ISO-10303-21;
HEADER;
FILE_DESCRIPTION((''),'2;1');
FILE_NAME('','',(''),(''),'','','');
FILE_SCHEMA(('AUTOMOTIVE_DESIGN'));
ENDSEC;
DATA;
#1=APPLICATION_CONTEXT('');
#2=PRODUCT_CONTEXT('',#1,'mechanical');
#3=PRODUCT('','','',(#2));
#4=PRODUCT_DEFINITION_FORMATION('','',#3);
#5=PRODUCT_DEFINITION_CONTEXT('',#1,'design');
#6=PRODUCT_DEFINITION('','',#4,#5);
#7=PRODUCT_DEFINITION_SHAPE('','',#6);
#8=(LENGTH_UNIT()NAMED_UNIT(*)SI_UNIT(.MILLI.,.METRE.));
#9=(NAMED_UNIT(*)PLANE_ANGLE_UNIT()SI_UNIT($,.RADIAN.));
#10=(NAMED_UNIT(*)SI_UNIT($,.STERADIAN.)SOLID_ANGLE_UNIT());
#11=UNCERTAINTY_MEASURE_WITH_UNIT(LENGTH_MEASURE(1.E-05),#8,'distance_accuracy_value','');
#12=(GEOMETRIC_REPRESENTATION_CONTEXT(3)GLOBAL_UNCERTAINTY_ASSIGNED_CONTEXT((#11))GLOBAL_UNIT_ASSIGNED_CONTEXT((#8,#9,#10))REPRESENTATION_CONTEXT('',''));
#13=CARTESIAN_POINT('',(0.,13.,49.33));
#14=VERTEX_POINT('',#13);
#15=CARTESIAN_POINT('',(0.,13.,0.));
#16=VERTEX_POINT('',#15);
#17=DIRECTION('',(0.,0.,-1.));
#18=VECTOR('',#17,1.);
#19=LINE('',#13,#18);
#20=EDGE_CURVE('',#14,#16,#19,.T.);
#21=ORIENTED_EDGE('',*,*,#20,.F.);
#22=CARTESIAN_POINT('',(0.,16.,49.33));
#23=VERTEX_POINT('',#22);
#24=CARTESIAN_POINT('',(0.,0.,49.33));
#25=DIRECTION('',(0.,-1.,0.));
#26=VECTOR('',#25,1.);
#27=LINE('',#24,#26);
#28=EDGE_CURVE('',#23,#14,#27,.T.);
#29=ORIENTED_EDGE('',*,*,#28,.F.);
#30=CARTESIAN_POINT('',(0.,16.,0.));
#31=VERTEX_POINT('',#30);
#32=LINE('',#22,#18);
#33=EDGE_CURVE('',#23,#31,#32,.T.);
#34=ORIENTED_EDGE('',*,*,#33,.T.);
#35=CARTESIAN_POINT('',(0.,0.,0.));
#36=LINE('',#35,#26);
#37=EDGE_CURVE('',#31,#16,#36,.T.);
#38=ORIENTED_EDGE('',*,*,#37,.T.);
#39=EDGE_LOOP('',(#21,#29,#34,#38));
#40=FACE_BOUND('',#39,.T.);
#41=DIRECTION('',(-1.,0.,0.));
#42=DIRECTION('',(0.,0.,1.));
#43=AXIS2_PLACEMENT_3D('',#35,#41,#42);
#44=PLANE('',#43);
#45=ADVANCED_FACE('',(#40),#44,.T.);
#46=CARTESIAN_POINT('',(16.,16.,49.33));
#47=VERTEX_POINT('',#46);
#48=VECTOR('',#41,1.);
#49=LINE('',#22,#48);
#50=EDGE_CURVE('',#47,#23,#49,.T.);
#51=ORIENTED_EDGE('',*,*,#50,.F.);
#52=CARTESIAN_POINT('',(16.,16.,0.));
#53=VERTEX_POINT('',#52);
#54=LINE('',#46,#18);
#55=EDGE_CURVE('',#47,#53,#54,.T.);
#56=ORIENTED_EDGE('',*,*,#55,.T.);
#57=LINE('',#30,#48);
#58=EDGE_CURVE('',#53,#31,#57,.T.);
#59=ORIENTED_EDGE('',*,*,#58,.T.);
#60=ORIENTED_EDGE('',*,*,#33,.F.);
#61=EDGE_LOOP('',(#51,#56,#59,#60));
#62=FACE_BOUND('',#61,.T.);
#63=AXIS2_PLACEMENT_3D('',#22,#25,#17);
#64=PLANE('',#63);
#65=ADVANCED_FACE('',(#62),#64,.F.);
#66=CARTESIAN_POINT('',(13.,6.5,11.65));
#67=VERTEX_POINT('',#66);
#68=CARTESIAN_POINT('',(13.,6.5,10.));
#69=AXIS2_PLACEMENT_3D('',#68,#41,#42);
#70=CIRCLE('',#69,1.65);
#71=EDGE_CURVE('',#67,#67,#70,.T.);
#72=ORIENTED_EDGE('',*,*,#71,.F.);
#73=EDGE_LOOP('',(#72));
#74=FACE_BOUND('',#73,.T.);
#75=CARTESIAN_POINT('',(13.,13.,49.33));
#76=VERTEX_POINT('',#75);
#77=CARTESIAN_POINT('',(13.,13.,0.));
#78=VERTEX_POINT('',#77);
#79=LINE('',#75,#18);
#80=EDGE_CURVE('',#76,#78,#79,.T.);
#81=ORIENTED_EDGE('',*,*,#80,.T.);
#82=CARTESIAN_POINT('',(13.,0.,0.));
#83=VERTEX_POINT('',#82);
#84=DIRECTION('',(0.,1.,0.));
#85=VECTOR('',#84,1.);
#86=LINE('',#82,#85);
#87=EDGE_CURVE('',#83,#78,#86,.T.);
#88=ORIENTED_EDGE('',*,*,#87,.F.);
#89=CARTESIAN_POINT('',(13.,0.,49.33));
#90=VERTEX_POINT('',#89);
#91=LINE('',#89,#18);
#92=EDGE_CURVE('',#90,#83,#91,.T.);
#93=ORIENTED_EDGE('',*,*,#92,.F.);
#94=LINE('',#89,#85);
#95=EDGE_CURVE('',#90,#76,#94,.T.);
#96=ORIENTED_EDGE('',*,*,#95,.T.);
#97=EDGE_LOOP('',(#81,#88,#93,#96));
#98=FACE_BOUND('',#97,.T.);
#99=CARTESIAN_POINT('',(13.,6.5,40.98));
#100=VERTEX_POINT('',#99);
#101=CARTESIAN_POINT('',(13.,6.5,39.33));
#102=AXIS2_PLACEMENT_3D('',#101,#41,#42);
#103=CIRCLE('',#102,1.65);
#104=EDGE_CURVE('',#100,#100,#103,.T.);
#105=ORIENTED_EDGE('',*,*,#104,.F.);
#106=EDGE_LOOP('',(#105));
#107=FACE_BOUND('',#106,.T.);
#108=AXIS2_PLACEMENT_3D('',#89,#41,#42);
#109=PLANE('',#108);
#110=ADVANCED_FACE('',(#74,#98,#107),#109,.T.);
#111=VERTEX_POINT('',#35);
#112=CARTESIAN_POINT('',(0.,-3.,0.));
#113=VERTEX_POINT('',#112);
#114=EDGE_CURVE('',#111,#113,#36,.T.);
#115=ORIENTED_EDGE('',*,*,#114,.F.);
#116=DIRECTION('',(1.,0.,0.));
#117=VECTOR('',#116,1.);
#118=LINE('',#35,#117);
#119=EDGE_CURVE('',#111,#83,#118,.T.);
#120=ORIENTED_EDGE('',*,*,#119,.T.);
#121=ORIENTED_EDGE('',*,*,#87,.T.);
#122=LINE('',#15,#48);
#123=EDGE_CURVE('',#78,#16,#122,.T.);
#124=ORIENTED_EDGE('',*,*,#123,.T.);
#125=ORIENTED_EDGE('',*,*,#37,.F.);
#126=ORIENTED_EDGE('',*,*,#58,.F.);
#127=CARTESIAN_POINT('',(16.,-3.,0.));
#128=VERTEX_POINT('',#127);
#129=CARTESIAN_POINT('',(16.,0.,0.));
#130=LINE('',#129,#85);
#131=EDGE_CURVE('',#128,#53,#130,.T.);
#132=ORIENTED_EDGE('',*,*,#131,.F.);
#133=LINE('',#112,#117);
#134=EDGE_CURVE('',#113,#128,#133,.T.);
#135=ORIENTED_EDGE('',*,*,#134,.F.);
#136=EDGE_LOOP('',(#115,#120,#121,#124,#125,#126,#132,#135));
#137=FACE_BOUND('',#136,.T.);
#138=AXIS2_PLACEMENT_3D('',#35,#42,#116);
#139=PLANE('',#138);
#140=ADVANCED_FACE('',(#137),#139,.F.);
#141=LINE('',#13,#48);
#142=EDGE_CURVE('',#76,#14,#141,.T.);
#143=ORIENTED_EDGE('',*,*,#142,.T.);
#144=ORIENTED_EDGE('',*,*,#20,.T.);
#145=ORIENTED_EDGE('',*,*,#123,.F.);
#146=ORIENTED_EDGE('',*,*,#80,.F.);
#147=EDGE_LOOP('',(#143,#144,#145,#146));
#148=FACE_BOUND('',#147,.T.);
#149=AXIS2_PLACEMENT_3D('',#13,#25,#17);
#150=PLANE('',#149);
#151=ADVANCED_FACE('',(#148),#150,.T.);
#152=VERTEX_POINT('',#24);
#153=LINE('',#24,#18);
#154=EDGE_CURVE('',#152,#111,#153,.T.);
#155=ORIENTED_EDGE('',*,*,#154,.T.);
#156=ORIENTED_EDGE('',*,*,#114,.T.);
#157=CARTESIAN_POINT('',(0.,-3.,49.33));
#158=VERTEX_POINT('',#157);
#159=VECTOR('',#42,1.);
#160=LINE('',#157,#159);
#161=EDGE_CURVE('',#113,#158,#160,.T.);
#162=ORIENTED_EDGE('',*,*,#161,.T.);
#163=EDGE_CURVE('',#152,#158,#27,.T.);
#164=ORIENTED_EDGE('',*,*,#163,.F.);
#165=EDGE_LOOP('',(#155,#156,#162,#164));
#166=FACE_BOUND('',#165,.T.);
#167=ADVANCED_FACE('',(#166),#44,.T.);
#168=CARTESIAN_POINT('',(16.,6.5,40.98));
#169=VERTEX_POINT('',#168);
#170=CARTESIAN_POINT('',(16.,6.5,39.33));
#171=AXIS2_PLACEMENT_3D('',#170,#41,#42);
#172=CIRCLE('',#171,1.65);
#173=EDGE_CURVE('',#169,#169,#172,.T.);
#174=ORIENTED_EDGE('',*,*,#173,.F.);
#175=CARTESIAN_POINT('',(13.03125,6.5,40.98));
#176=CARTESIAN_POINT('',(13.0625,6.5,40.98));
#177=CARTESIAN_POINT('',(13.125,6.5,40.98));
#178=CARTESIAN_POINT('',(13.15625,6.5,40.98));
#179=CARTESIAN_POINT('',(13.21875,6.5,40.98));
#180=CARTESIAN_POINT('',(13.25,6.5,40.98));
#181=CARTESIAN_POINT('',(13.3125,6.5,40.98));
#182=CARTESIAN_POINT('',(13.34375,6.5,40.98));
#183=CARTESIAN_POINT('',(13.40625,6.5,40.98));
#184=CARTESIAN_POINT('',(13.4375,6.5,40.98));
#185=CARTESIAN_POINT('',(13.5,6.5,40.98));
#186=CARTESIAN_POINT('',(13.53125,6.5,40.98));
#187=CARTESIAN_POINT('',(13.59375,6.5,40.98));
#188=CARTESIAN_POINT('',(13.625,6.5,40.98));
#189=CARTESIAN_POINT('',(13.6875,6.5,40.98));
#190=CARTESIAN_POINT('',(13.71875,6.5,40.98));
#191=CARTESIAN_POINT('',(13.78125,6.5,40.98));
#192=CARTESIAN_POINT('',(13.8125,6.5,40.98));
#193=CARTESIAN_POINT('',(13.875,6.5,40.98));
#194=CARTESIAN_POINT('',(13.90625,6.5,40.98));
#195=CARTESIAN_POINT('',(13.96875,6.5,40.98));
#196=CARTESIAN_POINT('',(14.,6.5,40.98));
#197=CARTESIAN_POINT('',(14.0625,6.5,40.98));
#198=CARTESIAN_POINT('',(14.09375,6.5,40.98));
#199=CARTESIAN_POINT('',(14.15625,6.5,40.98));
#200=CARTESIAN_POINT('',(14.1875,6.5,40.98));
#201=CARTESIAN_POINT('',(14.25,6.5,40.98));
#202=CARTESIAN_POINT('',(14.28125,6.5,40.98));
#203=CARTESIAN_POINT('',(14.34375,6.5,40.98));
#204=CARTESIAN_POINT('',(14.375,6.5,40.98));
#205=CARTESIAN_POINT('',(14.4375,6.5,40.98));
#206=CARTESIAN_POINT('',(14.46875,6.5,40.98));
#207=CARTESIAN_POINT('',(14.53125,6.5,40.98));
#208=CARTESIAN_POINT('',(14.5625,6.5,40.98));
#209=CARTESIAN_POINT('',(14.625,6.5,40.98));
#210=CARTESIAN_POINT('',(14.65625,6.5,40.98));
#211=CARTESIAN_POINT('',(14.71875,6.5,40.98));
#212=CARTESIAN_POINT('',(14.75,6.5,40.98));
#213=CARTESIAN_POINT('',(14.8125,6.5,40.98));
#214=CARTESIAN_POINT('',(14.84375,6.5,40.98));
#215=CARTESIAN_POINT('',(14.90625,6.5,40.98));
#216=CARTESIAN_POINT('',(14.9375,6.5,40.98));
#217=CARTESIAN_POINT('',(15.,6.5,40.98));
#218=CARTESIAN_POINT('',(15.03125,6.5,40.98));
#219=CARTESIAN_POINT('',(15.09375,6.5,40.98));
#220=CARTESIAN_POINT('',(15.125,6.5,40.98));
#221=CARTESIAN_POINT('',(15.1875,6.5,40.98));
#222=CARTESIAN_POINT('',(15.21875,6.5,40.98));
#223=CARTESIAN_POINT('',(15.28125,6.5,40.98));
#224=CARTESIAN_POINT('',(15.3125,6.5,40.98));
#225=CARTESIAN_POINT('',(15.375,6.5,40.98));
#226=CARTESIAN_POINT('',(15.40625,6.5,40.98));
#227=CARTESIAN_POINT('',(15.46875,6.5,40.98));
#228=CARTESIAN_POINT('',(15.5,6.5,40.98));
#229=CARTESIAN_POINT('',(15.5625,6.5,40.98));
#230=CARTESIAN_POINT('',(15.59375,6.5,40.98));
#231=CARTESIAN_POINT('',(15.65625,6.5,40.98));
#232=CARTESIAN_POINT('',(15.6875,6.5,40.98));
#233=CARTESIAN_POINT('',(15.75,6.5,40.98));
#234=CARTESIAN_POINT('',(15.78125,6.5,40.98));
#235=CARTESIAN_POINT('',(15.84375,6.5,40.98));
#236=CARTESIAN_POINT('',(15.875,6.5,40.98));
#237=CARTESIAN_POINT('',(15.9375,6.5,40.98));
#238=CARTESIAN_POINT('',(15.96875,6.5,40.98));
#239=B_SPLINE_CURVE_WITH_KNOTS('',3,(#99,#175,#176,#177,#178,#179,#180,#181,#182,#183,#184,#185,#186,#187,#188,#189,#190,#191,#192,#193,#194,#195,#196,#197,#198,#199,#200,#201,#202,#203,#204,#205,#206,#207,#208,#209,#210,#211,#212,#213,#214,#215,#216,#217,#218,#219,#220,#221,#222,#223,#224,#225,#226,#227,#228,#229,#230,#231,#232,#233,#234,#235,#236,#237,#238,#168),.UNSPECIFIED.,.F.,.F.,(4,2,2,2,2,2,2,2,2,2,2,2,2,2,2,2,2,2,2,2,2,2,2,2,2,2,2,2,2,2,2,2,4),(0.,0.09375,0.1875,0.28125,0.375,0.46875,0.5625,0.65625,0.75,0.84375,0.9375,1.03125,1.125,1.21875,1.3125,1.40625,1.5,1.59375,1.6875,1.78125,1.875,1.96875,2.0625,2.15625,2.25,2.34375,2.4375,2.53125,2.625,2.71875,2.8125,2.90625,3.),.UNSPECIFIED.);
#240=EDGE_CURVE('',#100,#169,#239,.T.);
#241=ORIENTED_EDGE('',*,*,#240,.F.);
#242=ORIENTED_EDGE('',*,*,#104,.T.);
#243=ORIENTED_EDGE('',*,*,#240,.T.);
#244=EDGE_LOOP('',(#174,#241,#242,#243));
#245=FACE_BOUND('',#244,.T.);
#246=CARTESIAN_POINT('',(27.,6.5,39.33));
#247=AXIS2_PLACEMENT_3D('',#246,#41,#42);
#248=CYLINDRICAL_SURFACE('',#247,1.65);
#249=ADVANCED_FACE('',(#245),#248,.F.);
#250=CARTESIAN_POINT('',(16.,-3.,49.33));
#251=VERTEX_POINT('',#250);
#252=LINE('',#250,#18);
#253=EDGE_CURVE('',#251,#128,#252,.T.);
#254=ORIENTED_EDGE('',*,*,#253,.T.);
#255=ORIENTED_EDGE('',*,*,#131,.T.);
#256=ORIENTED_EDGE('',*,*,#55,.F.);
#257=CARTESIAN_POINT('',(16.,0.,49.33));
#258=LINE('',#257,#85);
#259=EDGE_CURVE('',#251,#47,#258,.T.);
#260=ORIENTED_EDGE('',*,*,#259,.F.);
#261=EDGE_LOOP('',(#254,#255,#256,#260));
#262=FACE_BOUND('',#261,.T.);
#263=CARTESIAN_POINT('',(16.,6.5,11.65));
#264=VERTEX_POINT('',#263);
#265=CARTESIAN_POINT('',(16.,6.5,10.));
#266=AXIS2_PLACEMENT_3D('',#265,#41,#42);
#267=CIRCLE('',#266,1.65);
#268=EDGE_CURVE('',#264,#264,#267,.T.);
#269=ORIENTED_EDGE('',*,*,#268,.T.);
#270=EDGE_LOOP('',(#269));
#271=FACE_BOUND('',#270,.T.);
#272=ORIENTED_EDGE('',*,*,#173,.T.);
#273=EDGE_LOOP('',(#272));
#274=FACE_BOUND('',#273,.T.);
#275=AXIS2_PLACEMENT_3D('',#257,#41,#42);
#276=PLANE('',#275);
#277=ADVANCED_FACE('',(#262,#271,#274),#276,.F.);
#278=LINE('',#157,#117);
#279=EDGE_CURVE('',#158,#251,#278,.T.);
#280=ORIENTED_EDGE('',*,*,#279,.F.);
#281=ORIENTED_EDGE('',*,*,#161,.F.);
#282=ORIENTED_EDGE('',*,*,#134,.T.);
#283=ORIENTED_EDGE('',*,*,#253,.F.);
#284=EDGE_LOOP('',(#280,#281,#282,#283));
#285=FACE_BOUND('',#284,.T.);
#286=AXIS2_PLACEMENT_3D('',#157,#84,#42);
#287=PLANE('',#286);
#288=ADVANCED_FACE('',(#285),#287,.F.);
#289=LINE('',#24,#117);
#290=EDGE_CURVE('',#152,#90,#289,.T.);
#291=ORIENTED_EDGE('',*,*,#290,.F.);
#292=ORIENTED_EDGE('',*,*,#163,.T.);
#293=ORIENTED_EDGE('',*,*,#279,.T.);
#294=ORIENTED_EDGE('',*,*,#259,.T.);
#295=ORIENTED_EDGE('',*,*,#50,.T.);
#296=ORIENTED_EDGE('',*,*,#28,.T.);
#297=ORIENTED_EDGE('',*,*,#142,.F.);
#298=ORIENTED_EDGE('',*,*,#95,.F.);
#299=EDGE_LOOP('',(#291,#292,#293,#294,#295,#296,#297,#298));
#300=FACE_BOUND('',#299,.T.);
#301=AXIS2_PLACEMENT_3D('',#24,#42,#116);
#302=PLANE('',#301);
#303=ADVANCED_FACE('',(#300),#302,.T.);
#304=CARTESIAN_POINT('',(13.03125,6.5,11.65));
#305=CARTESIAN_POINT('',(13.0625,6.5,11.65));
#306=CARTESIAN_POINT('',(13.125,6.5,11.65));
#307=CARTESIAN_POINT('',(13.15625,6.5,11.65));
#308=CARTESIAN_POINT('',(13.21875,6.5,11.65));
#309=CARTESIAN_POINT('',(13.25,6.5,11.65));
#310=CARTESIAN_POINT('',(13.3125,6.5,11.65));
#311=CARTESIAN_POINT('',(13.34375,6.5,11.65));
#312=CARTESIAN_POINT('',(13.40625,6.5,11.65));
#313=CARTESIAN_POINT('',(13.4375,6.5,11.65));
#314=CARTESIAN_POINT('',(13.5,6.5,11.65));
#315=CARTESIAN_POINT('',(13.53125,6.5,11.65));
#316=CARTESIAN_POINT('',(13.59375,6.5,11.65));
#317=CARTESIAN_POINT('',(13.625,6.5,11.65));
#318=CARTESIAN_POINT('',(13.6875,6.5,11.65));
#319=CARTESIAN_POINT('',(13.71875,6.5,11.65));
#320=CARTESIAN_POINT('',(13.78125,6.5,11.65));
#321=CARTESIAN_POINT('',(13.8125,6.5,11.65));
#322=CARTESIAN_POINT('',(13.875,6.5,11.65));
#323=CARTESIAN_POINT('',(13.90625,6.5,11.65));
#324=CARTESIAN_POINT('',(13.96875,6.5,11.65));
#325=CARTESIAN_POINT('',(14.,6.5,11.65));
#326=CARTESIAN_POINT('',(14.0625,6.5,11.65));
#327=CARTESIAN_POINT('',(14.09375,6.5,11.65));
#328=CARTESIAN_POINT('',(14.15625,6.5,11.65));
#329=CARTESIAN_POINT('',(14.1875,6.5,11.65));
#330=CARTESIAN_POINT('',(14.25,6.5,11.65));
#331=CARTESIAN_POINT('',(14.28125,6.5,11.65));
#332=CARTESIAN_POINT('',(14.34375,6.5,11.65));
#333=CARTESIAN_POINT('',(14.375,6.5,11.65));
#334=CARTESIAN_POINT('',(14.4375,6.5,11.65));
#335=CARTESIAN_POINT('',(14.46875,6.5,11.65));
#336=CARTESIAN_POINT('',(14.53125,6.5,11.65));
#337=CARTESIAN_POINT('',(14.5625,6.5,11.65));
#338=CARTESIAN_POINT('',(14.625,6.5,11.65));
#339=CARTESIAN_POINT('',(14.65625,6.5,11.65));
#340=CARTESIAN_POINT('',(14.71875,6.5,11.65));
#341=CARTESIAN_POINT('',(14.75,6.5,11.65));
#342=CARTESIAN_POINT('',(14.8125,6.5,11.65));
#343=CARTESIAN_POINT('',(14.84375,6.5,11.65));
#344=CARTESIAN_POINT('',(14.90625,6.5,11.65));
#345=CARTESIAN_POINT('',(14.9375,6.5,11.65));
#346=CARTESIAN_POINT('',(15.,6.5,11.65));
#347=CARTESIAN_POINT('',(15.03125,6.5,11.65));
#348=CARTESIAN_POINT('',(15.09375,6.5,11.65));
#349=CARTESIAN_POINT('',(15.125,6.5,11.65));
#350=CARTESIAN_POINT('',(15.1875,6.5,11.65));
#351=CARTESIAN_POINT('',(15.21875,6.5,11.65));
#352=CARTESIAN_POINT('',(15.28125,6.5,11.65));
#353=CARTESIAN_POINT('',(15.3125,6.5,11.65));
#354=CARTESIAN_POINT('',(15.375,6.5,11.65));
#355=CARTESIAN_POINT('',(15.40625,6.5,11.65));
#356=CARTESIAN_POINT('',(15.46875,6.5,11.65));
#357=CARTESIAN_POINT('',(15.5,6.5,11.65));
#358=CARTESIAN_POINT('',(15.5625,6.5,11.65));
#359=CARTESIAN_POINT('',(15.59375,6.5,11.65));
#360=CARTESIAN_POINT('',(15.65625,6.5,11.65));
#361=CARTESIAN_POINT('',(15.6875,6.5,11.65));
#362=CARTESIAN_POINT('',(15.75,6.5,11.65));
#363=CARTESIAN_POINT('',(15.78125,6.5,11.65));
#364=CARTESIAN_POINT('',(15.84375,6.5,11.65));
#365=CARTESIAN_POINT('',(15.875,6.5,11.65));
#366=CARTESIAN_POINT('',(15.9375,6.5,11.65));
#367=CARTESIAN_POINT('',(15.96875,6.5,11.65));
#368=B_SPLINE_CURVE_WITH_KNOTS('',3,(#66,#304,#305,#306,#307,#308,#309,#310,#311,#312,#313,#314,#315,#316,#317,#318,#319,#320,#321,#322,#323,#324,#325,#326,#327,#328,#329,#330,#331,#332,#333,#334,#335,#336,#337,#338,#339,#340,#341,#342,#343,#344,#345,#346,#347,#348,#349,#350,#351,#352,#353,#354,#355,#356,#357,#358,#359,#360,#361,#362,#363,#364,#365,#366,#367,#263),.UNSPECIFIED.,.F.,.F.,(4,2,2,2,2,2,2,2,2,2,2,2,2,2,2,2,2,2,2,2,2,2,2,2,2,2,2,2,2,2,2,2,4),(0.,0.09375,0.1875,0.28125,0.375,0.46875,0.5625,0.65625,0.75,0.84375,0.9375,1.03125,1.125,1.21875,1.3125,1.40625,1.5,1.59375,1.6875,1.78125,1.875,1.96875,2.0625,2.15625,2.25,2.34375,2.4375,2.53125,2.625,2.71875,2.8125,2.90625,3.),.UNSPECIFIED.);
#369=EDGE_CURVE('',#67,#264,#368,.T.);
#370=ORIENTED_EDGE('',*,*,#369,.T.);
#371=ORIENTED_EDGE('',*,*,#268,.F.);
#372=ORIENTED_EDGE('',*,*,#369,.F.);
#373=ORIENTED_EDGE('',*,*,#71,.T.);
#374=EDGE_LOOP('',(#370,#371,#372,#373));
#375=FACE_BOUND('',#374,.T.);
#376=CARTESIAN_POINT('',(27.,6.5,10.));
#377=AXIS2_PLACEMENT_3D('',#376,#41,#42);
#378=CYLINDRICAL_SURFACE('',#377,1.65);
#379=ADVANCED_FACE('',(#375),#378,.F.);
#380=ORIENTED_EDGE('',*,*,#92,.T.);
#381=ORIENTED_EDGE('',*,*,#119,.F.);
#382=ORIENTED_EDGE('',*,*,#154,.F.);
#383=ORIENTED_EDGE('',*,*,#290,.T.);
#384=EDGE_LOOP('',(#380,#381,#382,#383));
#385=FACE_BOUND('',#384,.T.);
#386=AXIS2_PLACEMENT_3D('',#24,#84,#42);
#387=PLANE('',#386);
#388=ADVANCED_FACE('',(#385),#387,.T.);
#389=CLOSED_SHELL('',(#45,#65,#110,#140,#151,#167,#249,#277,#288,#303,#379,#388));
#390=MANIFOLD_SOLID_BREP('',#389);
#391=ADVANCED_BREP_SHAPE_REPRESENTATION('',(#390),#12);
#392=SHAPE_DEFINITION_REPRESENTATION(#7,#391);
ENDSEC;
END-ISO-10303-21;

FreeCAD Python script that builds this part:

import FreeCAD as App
import Part
import Sketcher

V = App.Vector


def add_polygon(sketch, points):
    """Adds a closed chain of lines whose ends are joined by coincident constraints."""
    first, n = sketch.GeometryCount, len(points)
    for a, b in zip(points, points[1:] + points[:1]):
        sketch.addGeometry(Part.LineSegment(App.Vector(*a, 0), App.Vector(*b, 0)), False)
    for i in range(n):
        sketch.addConstraint(Sketcher.Constraint("Coincident", first + i, 2, first + (i + 1) % n, 1))

doc = App.newDocument("Part")
body = doc.addObject("PartDesign::Body", "Body")

# Sketch on XY plane
sketch1 = body.newObject("Sketcher::SketchObject", "Sketch")
sketch1.AttachmentSupport = (doc.getObject("XY_Plane"), [""])
sketch1.MapMode = "FlatFace"
add_polygon(sketch1, [(-3, 16), (-3, -3), (16, -3), (16, 16)])  # lines 0-3
add_polygon(sketch1, [(13, 0), (0, 0), (0, 13), (13, 13)])  # lines 4-7
sketch1.addConstraint([
    Sketcher.Constraint("Vertical", 0),
    Sketcher.Constraint("Horizontal", 1),
    Sketcher.Constraint("Vertical", 2),
    Sketcher.Constraint("Horizontal", 3),
    Sketcher.Constraint("Horizontal", 4),
    Sketcher.Constraint("Vertical", 5),
    Sketcher.Constraint("Horizontal", 6),
    Sketcher.Constraint("Vertical", 7),
    Sketcher.Constraint("Coincident", 4, 2, -1, 1),
    Sketcher.Constraint("Equal", 3, 0),
    Sketcher.Constraint("Equal", 6, 5),
    Sketcher.Constraint("DistanceX", 1, 1, 1, 2, 19.0),
    Sketcher.Constraint("DistanceX", 4, 2, 4, 1, 13.0),
    Sketcher.Constraint("DistanceX", 0, 2, -1, 1, 3.0),
    Sketcher.Constraint("DistanceY", 0, 2, -1, 1, 3.0),
])
pad1 = body.newObject("PartDesign::Pad", "Pad")
pad1.Profile = sketch1
pad1.Length = 49.33

# Sketch on YZ plane
sketch2 = body.newObject("Sketcher::SketchObject", "Sketch001")
sketch2.AttachmentSupport = (doc.getObject("YZ_Plane"), [""])
sketch2.MapMode = "FlatFace"
sketch2.AttachmentOffset = App.Placement(V(0, 0, -3), App.Rotation())
sketch2.addGeometry([
    Part.Circle(V(6.5, 10, 0), V(0, 0, 1), 1.6),
    Part.Circle(V(6.5, 39.3, 0), V(0, 0, 1), 1.6),
], False)
sketch2.addConstraint([
    Sketcher.Constraint("Equal", 0, 1),
    Sketcher.Constraint("Vertical", 0, 3, 1, 3),
    Sketcher.Constraint("Diameter", 0, 3.3),
    Sketcher.Constraint("DistanceY", -1, 1, 0, 3, 10.0),
    Sketcher.Constraint("DistanceX", -1, 1, 0, 3, 6.5),
    Sketcher.Constraint("DistanceY", -1, 1, 1, 3, 39.33),
])
pocket1 = body.newObject("PartDesign::Pocket", "Pocket")
pocket1.Profile = sketch2
pocket1.Length = 30
pocket1.Reversed = True

# Sketch on YZ plane
sketch3 = body.newObject("Sketcher::SketchObject", "Sketch002")
sketch3.AttachmentSupport = (doc.getObject("YZ_Plane"), [""])
sketch3.MapMode = "FlatFace"
sketch3.AttachmentOffset = App.Placement(V(0, 0, -3), App.Rotation())
add_polygon(sketch3, [(23, -5), (-23, -5), (-23, 112), (23, 112)])  # lines 0-3
sketch3.addConstraint([
    Sketcher.Constraint("Horizontal", 0),
    Sketcher.Constraint("Vertical", 1),
    Sketcher.Constraint("Horizontal", 2),
    Sketcher.Constraint("Vertical", 3),
    Sketcher.Constraint("DistanceX", 0, 2, 0, 1, 46.219516),
    Sketcher.Constraint("DistanceY", 1, 1, 1, 2, 116.915178),
    Sketcher.Constraint("DistanceX", 0, 2, -1, 1, 22.907019),
    Sketcher.Constraint("DistanceY", 0, 2, -1, 1, 5.295352),
])
pocket2 = body.newObject("PartDesign::Pocket", "Pocket001")
pocket2.Profile = sketch3
pocket2.Length = 3
pocket2.Reversed = True

doc.recompute()
